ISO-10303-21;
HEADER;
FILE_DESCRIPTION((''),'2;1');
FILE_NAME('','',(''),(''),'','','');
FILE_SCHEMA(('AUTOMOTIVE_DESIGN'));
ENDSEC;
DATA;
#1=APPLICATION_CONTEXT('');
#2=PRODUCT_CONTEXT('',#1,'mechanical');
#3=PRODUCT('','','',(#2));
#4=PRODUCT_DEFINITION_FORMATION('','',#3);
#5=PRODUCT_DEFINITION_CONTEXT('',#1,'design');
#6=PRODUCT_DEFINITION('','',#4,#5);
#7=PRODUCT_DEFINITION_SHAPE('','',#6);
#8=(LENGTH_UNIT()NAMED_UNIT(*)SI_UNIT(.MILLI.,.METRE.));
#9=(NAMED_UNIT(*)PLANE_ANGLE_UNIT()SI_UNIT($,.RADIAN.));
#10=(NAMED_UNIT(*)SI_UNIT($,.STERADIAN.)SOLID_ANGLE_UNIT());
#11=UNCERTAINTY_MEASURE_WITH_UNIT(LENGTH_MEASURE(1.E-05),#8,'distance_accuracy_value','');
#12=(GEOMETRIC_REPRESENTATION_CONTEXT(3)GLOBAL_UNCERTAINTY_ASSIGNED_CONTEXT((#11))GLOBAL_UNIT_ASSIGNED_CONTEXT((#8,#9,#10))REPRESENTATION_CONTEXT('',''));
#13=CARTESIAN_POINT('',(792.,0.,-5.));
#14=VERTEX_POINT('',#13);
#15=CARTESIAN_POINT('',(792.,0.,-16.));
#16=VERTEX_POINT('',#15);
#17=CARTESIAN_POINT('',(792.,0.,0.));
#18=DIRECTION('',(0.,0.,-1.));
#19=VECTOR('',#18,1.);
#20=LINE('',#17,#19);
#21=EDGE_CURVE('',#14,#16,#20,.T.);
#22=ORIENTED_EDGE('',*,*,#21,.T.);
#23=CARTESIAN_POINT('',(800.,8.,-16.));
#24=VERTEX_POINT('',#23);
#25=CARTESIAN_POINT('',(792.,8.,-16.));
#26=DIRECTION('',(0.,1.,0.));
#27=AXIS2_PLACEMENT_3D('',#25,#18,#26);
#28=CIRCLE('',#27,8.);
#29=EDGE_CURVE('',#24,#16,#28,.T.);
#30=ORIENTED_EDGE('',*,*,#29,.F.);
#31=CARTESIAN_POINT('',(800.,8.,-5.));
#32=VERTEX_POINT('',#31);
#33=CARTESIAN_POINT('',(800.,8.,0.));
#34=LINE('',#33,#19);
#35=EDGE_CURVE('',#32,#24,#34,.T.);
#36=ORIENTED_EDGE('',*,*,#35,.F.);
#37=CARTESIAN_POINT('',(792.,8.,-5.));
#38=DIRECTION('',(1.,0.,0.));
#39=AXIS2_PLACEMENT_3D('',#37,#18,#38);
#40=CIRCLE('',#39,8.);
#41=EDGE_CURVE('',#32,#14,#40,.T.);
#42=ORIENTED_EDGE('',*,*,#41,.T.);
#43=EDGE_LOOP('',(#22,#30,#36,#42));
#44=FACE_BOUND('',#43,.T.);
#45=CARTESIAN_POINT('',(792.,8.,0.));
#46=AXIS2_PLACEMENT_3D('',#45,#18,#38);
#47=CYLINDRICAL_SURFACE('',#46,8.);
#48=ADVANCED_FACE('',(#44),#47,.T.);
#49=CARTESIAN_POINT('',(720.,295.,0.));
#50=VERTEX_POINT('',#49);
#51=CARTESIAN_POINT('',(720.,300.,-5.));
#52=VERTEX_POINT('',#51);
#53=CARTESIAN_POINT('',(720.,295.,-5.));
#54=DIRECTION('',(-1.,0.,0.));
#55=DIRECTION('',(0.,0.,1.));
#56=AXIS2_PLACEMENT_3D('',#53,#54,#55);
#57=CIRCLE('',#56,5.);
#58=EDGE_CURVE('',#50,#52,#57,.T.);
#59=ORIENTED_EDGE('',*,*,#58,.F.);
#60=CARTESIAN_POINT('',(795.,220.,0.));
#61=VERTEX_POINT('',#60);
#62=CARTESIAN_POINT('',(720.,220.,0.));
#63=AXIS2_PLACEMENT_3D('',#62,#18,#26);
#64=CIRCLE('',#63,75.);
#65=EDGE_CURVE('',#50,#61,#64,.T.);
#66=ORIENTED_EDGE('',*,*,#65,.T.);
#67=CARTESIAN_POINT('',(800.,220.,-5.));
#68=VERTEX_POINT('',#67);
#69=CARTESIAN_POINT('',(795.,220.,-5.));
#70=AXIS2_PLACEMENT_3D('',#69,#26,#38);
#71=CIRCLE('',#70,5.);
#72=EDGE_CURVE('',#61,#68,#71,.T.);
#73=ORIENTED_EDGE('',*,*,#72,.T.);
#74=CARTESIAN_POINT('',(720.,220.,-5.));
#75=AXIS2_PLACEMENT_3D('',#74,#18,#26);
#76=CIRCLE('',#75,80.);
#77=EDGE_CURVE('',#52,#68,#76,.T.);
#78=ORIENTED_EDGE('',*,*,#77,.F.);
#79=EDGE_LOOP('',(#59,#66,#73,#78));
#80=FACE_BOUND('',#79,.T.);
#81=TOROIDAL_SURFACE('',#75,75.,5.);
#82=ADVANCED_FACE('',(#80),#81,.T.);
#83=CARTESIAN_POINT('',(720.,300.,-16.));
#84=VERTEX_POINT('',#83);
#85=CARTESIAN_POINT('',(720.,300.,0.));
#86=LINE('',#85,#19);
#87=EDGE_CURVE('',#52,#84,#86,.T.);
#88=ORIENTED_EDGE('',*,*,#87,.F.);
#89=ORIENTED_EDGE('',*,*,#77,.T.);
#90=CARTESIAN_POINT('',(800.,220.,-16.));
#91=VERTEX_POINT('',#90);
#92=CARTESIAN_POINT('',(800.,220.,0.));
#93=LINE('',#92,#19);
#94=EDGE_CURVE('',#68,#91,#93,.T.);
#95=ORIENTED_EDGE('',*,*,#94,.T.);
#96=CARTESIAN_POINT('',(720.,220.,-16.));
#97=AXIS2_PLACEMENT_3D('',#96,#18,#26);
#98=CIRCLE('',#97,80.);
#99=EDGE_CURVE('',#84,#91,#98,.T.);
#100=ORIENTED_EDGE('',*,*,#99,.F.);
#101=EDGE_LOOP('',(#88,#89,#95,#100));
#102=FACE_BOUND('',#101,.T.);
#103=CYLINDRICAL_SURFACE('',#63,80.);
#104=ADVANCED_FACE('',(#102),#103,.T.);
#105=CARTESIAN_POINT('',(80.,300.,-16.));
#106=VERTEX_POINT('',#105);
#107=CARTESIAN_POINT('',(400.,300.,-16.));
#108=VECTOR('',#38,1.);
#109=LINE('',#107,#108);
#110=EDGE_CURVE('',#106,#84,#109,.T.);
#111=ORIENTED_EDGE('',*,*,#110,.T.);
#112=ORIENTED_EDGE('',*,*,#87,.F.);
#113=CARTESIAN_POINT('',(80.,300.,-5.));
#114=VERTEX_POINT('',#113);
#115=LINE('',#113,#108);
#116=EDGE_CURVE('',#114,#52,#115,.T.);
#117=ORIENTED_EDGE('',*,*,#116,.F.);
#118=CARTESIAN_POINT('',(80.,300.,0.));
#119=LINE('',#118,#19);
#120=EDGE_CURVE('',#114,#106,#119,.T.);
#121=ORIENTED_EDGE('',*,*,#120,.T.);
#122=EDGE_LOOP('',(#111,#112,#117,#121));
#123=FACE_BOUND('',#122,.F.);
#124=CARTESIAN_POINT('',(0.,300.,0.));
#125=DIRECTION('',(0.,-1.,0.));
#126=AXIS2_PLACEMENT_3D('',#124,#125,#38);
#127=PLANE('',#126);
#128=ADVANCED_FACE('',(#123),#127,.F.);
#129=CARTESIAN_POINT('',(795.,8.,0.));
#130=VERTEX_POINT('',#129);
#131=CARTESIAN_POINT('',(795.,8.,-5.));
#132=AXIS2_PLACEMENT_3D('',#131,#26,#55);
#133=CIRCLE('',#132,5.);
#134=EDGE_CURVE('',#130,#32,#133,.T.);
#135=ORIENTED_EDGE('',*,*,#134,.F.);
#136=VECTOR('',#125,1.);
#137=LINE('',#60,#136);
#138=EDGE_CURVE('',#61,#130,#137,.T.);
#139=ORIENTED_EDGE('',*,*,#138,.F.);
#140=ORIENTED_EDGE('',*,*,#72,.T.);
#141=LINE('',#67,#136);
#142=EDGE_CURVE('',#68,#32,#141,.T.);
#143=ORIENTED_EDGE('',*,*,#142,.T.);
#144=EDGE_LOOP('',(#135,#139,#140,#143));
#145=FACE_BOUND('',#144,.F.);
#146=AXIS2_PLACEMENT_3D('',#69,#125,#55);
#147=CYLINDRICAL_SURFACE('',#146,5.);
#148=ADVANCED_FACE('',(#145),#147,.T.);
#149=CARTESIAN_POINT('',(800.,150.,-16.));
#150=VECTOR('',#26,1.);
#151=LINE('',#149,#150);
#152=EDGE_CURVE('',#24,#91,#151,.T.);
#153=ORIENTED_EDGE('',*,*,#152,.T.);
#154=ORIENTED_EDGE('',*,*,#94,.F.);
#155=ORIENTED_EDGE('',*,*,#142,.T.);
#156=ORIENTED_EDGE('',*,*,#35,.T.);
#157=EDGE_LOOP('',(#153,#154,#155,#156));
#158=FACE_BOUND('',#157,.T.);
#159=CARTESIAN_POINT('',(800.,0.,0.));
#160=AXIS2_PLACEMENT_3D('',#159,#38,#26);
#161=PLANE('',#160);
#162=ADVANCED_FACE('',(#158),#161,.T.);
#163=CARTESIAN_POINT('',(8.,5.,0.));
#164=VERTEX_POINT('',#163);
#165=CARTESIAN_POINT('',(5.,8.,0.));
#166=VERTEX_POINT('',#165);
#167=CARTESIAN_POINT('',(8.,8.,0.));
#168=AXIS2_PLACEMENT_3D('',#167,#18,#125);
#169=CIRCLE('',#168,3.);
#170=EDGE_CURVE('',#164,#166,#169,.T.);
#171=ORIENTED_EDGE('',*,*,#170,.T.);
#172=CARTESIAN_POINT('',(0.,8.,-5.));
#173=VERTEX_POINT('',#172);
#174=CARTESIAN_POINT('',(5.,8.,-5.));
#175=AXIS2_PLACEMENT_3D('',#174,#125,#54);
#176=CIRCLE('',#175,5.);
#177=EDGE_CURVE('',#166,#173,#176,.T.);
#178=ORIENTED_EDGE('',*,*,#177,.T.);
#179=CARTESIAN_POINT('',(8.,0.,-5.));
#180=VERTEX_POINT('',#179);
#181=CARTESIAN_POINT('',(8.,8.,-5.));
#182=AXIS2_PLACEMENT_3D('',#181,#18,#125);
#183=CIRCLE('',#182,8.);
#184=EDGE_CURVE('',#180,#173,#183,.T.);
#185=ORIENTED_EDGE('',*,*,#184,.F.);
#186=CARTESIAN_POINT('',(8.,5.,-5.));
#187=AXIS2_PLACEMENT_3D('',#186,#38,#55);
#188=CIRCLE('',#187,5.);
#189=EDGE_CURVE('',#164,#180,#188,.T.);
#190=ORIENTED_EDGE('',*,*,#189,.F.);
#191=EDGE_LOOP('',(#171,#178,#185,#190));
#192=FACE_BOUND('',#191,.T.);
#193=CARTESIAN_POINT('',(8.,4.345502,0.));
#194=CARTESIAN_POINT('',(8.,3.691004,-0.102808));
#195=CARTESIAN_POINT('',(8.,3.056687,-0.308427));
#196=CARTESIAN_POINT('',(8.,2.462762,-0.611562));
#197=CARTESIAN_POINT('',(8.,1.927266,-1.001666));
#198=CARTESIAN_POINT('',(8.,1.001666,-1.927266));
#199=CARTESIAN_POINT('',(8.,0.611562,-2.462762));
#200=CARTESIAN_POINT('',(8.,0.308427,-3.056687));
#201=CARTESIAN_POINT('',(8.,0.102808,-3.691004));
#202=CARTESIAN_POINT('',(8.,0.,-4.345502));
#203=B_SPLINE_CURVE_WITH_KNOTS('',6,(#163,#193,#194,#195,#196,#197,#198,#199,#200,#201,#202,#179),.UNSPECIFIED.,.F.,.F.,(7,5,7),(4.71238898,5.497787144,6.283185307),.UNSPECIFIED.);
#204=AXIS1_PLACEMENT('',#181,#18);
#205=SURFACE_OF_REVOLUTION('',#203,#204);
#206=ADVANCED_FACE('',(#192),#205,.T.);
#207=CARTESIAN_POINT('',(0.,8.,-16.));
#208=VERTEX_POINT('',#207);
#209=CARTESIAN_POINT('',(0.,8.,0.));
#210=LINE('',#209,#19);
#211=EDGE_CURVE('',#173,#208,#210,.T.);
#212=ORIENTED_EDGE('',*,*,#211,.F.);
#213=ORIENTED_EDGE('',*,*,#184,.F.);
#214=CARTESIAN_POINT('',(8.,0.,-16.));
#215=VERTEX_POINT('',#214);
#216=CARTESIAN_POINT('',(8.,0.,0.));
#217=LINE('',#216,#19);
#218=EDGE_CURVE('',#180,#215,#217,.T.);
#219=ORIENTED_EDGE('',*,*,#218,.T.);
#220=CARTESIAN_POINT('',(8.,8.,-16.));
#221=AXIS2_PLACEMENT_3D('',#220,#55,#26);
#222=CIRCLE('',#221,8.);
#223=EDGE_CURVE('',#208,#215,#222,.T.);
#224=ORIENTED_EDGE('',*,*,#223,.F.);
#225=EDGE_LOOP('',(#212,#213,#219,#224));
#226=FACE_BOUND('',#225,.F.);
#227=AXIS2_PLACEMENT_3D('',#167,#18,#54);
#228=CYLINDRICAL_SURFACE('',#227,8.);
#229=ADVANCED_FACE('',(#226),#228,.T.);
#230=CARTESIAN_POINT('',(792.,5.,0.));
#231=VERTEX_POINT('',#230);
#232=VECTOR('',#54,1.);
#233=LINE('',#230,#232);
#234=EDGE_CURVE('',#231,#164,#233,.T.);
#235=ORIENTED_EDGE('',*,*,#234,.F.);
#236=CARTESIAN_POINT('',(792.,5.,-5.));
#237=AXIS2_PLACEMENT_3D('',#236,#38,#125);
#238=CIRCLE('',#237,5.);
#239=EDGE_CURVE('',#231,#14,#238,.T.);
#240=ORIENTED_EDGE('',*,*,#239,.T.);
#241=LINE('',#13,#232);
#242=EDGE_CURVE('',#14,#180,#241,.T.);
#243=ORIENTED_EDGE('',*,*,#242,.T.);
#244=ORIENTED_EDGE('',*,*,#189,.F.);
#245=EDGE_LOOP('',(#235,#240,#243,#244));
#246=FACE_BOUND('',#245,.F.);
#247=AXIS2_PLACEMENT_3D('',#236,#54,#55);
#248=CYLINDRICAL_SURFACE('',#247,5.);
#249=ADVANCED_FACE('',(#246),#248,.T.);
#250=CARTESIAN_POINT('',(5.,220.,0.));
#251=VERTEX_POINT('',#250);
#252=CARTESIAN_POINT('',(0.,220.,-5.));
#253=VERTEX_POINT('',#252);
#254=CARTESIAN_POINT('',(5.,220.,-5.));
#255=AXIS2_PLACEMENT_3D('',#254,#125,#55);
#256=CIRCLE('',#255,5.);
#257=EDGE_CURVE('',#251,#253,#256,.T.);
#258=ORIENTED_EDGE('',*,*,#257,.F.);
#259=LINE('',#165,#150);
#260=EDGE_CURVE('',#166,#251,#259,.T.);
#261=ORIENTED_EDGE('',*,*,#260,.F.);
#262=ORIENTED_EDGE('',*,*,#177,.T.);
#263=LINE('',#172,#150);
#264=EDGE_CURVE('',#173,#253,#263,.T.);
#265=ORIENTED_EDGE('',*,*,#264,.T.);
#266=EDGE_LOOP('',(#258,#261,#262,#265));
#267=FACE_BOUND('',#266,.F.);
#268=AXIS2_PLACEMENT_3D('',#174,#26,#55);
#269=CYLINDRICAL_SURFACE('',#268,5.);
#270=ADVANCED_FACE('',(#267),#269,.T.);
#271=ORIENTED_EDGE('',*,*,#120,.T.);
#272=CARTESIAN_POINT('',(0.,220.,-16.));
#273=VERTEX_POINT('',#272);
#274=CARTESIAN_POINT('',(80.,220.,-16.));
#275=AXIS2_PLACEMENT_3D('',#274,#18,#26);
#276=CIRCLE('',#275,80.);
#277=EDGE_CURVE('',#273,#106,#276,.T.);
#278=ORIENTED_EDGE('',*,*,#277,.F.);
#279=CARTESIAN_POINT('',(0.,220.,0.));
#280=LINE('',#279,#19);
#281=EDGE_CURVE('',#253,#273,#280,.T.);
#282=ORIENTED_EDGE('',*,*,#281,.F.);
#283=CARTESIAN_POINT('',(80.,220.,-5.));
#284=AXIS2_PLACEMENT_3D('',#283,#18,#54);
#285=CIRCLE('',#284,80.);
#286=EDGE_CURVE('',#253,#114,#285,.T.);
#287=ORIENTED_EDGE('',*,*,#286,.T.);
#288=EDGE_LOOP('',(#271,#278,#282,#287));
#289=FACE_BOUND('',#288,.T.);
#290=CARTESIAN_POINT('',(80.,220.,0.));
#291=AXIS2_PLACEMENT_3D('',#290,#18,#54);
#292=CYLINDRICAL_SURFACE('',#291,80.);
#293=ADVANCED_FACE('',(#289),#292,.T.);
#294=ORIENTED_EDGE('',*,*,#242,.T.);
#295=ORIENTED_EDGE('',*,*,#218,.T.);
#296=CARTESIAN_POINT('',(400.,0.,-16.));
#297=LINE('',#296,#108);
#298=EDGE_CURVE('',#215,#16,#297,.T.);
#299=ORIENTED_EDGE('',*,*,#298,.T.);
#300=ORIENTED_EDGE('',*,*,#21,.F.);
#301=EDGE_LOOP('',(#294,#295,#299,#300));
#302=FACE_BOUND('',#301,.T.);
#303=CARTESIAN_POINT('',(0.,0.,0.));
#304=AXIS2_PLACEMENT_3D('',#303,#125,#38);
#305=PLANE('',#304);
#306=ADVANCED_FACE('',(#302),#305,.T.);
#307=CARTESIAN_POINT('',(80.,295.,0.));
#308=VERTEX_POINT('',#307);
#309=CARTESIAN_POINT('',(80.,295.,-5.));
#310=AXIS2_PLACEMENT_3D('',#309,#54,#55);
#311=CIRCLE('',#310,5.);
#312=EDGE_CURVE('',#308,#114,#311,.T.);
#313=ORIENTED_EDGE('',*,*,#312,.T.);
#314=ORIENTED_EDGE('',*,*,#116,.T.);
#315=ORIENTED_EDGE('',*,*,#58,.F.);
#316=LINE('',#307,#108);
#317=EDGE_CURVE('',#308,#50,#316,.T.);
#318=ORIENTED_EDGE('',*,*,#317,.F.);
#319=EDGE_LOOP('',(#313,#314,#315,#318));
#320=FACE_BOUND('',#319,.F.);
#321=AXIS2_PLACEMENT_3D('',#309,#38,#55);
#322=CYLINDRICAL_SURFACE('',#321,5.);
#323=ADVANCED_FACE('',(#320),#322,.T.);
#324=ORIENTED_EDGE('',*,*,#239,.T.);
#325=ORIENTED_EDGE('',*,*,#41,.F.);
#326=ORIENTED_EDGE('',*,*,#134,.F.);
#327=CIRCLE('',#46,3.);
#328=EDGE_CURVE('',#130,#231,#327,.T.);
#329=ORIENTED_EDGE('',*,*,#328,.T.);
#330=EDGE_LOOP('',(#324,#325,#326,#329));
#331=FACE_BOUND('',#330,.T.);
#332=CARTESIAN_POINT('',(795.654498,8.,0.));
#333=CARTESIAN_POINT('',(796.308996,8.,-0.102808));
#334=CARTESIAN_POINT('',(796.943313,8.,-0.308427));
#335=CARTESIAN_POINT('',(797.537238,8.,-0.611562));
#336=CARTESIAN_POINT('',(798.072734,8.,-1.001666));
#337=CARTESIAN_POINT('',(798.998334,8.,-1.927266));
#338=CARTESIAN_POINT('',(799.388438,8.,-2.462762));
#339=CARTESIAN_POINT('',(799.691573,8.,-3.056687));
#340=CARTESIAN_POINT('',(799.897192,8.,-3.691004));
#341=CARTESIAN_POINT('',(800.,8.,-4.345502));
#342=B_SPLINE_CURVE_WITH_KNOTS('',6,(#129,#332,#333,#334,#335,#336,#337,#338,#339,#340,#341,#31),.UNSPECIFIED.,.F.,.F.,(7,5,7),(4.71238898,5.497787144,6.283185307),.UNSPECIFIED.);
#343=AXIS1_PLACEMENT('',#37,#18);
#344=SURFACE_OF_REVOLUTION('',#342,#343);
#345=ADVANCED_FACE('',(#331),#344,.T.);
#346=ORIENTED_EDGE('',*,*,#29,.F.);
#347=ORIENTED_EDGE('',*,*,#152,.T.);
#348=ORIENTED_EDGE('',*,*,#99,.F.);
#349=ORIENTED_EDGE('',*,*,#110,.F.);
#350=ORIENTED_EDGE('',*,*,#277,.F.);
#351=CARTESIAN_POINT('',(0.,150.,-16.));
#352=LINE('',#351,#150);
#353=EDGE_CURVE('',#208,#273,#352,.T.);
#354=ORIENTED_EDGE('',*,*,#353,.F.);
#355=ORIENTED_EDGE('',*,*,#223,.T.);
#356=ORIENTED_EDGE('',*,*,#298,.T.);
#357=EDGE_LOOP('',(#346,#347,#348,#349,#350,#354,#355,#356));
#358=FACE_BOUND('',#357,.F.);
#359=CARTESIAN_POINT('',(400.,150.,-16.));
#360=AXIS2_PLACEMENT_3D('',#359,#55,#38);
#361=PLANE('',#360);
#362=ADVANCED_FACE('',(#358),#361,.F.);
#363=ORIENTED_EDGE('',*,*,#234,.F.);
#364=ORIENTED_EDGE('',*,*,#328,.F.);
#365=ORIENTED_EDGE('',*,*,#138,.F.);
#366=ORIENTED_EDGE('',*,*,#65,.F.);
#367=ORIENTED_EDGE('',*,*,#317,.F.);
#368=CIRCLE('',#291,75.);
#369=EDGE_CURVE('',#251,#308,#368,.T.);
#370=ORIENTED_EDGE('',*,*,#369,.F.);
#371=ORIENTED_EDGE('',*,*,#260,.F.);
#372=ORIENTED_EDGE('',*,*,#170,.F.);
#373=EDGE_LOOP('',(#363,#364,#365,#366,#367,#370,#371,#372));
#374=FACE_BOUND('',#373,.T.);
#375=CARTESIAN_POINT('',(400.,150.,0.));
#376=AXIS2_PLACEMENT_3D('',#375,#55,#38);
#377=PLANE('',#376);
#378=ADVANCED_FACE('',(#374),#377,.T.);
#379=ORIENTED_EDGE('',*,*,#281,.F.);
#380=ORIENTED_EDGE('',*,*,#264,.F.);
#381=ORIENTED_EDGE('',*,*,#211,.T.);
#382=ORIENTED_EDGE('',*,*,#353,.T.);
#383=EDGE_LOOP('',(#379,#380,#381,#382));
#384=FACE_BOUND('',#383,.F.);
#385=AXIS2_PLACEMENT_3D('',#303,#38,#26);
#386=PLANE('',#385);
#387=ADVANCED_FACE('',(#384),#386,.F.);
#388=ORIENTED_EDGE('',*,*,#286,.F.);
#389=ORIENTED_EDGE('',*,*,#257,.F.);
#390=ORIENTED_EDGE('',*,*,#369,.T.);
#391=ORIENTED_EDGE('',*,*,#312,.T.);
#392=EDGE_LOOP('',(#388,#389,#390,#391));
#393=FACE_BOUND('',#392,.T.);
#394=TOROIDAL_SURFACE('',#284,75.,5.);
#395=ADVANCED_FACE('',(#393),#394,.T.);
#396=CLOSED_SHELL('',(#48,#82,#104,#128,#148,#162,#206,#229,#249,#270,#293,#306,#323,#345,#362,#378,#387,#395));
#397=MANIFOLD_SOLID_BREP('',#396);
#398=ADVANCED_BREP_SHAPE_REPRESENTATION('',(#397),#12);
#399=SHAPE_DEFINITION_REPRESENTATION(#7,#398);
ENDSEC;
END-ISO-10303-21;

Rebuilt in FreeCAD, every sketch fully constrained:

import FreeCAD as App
import Part
import Sketcher
from FreeCAD import Vector


def edges_at(feature, points):
    """Names of the edges that pass closest to the given points."""
    edges = feature.Shape.Edges
    near = lambda p: min(range(len(edges)), key=lambda i: edges[i].distToShape(Part.Vertex(*p))[0])
    return sorted({f"Edge{near(p) + 1}" for p in points})


def add_polygon(sketch, points):
    """Adds a closed chain of lines whose ends are joined by coincident constraints."""
    first, n = sketch.GeometryCount, len(points)
    for a, b in zip(points, points[1:] + points[:1]):
        sketch.addGeometry(Part.LineSegment(App.Vector(*a, 0), App.Vector(*b, 0)), False)
    for i in range(n):
        sketch.addConstraint(Sketcher.Constraint("Coincident", first + i, 2, first + (i + 1) % n, 1))

doc = App.newDocument("Part")
body = doc.addObject("PartDesign::Body", "Body")

# Sketch on XY plane
sketch1 = body.newObject("Sketcher::SketchObject", "Sketch")
sketch1.AttachmentSupport = (doc.getObject("XY_Plane"), [""])
sketch1.MapMode = "FlatFace"
add_polygon(sketch1, [(0, 300), (0, 0), (800, 0), (800, 300)])  # lines 0-3
sketch1.addConstraint([
    Sketcher.Constraint("Vertical", 0),
    Sketcher.Constraint("Horizontal", 1),
    Sketcher.Constraint("Vertical", 2),
    Sketcher.Constraint("Horizontal", 3),
    Sketcher.Constraint("Coincident", 0, 2, -1, 1),
    Sketcher.Constraint("DistanceX", 1, 1, 1, 2, 800.0),
    Sketcher.Constraint("DistanceY", 0, 2, 0, 1, 300.0),
])
pad1 = body.newObject("PartDesign::Pad", "Pad")
pad1.Profile = sketch1
pad1.Length = 16
pad1.Reversed = True
doc.recompute()

fillet = body.newObject("PartDesign::Fillet", "Fillet")
fillet.Base = (pad1, edges_at(pad1, [(0, 300, -8)]))
fillet.Radius = 80
doc.recompute()

fillet2 = body.newObject("PartDesign::Fillet", "Fillet001")
fillet2.Base = (fillet, edges_at(fillet, [(800, 300, -8)]))
fillet2.Radius = 80
doc.recompute()

fillet3 = body.newObject("PartDesign::Fillet", "Fillet002")
fillet3.Base = (fillet2, edges_at(fillet2, [(800, 0, -8), (0, 0, -8)]))
fillet3.Radius = 8
doc.recompute()

fillet4 = body.newObject("PartDesign::Fillet", "Fillet003")
fillet4.Base = (fillet3, edges_at(fillet3, [(400, 300, 0)]))
fillet4.Radius = 5

doc.recompute()
